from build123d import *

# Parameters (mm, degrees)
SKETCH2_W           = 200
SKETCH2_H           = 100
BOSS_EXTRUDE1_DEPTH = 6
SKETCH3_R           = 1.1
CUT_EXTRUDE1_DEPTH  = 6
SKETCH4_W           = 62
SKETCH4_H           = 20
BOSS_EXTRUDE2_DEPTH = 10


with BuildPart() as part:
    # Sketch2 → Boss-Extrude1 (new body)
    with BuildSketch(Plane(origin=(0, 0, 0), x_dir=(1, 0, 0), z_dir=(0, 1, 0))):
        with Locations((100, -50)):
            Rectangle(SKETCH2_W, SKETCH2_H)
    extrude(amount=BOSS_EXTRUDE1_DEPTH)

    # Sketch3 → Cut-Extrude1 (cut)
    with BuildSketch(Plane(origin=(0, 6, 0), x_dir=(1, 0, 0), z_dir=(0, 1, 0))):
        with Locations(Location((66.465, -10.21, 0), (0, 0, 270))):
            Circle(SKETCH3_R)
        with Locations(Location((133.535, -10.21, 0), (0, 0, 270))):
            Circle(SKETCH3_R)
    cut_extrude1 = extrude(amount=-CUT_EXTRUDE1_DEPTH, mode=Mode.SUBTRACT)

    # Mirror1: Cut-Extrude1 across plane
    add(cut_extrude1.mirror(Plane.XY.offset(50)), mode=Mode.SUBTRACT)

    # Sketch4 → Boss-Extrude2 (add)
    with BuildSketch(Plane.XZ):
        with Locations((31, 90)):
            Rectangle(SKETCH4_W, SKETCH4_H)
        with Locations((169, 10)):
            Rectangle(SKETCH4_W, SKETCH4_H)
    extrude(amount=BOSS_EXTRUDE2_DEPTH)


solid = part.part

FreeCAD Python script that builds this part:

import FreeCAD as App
import Part
import Sketcher
Q = App.Units.Quantity


def add_polygon(sketch, points):
    """Adds a closed chain of lines whose ends are joined by coincident constraints."""
    first, n = sketch.GeometryCount, len(points)
    for a, b in zip(points, points[1:] + points[:1]):
        sketch.addGeometry(Part.LineSegment(App.Vector(*a, 0), App.Vector(*b, 0)), False)
    for i in range(n):
        sketch.addConstraint(Sketcher.Constraint("Coincident", first + i, 2, first + (i + 1) % n, 1))

doc = App.newDocument("Part")
body = doc.addObject("PartDesign::Body", "Body")

# Sketch on XZ plane
sketch1 = body.newObject("Sketcher::SketchObject", "Sketch")
sketch1.AttachmentSupport = (doc.getObject("XZ_Plane"), [""])
sketch1.MapMode = "FlatFace"
add_polygon(sketch1, [(0, 0), (0, 100), (200, 100), (200, 0)])  # lines 0-3
sketch1.addConstraint([
    Sketcher.Constraint("Vertical", 0),
    Sketcher.Constraint("Horizontal", 1),
    Sketcher.Constraint("Vertical", 2),
    Sketcher.Constraint("Horizontal", 3),
    Sketcher.Constraint("Coincident", 3, 2, -1, 1),
    Sketcher.Constraint("DistanceX", 1, 1, 1, 2, Q("200 mm")),
    Sketcher.Constraint("DistanceY", 0, 1, 0, 2, Q("100 mm")),
])
pad1 = body.newObject("PartDesign::Pad", "Pad")
pad1.Profile = sketch1
pad1.Length = 6
pad1.Reversed = True

# Sketch on XZ plane
sketch2 = body.newObject("Sketcher::SketchObject", "Sketch001")
sketch2.AttachmentSupport = (doc.getObject("XZ_Plane"), [""])
sketch2.MapMode = "FlatFace"
sketch2.AttachmentOffset = App.Placement(App.Vector(0, 0, -6), App.Rotation())
sketch2.addGeometry([
    Part.Circle(App.Vector(66.5, 10.2, 0), App.Vector(0, 0, 1), 1.1),
    Part.Circle(App.Vector(133.5, 10.2, 0), App.Vector(0, 0, 1), 1.1),
], False)
sketch2.addConstraint([
    Sketcher.Constraint("Equal", 0, 1),
    Sketcher.Constraint("Horizontal", 0, 3, 1, 3),
    Sketcher.Constraint("Diameter", 0, Q("2.2 mm")),
    Sketcher.Constraint("DistanceY", -1, 1, 0, 3, Q("10.21 mm")),
    Sketcher.Constraint("DistanceX", 0, 3, 1, 3, Q("67.07 mm")),
    Sketcher.Constraint("DistanceX", -1, 1, 0, 3, Q("66.465 mm")),
])
pocket1 = body.newObject("PartDesign::Pocket", "Pocket")
pocket1.Profile = sketch2
pocket1.Length = 6
pocket1.Reversed = True
doc.recompute()

datumplane = body.newObject("PartDesign::Plane", "DatumPlane")
datumplane.AttachmentSupport = (doc.getObject("XY_Plane"), [""])
datumplane.MapMode = "FlatFace"
datumplane.AttachmentOffset = App.Placement(App.Vector(0, 0, 50), App.Rotation())
mirrored = body.newObject("PartDesign::Mirrored", "Mirrored")
mirrored.Originals = [pocket1]
mirrored.MirrorPlane = (datumplane, [""])
body.Tip = mirrored

# Sketch on XZ plane
sketch3 = body.newObject("Sketcher::SketchObject", "Sketch002")
sketch3.AttachmentSupport = (doc.getObject("XZ_Plane"), [""])
sketch3.MapMode = "FlatFace"
add_polygon(sketch3, [(0, 100), (0, 80), (62, 80), (62, 100)])  # lines 0-3
add_polygon(sketch3, [(138, 20), (138, 0), (200, 0), (200, 20)])  # lines 4-7
sketch3.addConstraint([
    Sketcher.Constraint("Vertical", 0),
    Sketcher.Constraint("Horizontal", 1),
    Sketcher.Constraint("Vertical", 2),
    Sketcher.Constraint("Horizontal", 3),
    Sketcher.Constraint("Vertical", 4),
    Sketcher.Constraint("Horizontal", 5),
    Sketcher.Constraint("Vertical", 6),
    Sketcher.Constraint("Horizontal", 7),
    Sketcher.Constraint("PointOnObject", 0, 2, -2),
    Sketcher.Constraint("PointOnObject", 4, 2, -1),
    Sketcher.Constraint("Equal", 3, 5),
    Sketcher.Constraint("Equal", 2, 4),
    Sketcher.Constraint("DistanceX", 1, 1, 1, 2, Q("62 mm")),
    Sketcher.Constraint("DistanceY", 0, 2, 0, 1, Q("20 mm")),
    Sketcher.Constraint("DistanceY", -1, 1, 0, 2, Q("80 mm")),
    Sketcher.Constraint("DistanceX", -1, 1, 4, 2, Q("138 mm")),
])
pad2 = body.newObject("PartDesign::Pad", "Pad001")
pad2.Profile = sketch3
pad2.Length = 10

doc.recompute()
